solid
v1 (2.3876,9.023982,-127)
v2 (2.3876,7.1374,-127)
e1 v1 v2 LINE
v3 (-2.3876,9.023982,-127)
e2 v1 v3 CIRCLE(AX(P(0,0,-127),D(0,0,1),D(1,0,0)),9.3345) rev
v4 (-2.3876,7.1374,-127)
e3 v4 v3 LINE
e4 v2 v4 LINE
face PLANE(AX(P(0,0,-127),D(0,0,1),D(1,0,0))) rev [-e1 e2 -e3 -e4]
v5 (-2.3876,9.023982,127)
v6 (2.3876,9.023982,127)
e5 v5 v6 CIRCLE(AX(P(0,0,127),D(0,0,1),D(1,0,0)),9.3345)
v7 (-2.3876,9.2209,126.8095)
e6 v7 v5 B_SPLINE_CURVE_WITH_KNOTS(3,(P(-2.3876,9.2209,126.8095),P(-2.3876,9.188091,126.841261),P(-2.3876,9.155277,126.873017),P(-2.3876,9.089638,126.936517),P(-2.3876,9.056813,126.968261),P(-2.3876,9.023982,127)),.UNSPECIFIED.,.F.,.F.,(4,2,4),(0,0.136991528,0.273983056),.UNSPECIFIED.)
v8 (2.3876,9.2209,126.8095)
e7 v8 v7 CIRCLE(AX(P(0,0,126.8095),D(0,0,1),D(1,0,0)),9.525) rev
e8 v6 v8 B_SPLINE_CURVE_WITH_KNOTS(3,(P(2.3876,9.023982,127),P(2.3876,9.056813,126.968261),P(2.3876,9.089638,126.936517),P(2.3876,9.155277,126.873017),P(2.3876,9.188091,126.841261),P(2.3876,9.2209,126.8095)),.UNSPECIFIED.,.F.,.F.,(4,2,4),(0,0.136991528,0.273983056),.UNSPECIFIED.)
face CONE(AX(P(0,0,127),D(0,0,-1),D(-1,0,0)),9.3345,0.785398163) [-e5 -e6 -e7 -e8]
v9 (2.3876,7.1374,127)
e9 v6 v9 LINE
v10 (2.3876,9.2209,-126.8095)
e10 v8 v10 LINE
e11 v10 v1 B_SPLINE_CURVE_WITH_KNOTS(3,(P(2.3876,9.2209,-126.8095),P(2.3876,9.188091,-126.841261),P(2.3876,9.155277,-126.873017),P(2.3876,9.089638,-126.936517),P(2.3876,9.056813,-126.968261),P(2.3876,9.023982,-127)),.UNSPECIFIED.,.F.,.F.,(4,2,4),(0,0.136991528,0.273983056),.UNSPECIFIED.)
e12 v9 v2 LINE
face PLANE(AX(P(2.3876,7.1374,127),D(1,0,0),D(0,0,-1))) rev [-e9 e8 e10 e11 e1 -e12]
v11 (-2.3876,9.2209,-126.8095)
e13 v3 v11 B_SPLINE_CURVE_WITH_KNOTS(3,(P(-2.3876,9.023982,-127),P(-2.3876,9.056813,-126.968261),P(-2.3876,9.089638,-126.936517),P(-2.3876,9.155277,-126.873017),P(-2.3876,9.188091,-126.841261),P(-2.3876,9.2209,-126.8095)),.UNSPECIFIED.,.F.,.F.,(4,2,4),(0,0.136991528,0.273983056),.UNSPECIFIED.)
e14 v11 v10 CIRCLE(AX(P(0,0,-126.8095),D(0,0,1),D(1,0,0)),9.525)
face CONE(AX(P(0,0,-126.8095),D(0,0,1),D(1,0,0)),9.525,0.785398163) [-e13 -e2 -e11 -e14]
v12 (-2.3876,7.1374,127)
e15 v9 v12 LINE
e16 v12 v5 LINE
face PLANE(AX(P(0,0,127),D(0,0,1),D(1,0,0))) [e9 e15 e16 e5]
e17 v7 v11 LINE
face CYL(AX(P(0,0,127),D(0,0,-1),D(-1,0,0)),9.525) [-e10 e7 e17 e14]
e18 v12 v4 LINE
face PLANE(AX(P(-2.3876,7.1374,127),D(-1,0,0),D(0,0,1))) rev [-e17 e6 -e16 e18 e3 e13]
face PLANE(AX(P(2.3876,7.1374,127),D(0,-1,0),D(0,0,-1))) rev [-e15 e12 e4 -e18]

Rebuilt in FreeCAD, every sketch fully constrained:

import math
import FreeCAD as App
import Part
import Sketcher
from FreeCAD import Vector
Q = App.Units.Quantity


def edges_at(feature, points):
    """Names of the edges that pass closest to the given points."""
    edges = feature.Shape.Edges
    near = lambda p: min(range(len(edges)), key=lambda i: edges[i].distToShape(Part.Vertex(*p))[0])
    return sorted({f"Edge{near(p) + 1}" for p in points})

doc = App.newDocument("Part")
body = doc.addObject("PartDesign::Body", "Body")

# Sketch on XY plane
sketch1 = body.newObject("Sketcher::SketchObject", "Sketch")
sketch1.AttachmentSupport = (doc.getObject("XY_Plane"), [""])
sketch1.MapMode = "FlatFace"
sketch1.addGeometry(Part.LineSegment(Vector(-2.4, 7.1, 0), Vector(-2.4, 9.2, 0)), False)
sketch1.addGeometry(Part.ArcOfCircle(Part.Circle(Vector(0, 0, 0), Vector(0, 0, 1), 9.5), math.radians(105), math.radians(435)), False)
sketch1.addGeometry(Part.LineSegment(Vector(2.4, 9.2, 0), Vector(2.4, 7.1, 0)), False)
sketch1.addGeometry(Part.LineSegment(Vector(2.4, 7.1, 0), Vector(-2.4, 7.1, 0)), False)
sketch1.addConstraint(Sketcher.Constraint("Coincident", 0, 2, 1, 1))
sketch1.addConstraint(Sketcher.Constraint("Coincident", 1, 2, 2, 1))
sketch1.addConstraint(Sketcher.Constraint("Coincident", 2, 2, 3, 1))
sketch1.addConstraint(Sketcher.Constraint("Coincident", 3, 2, 0, 1))
sketch1.addConstraint(Sketcher.Constraint("Vertical", 0))
sketch1.addConstraint(Sketcher.Constraint("Vertical", 2))
sketch1.addConstraint(Sketcher.Constraint("Horizontal", 3))
sketch1.addConstraint(Sketcher.Constraint("Coincident", 1, 3, -1, 1))
sketch1.addConstraint(Sketcher.Constraint("Horizontal", 0, 2, 1, 2))
sketch1.addConstraint(Sketcher.Constraint("Radius", 1, Q("0.375 in")))
sketch1.addConstraint(Sketcher.Constraint("DistanceX", 3, 2, 3, 1, Q("0.188 in")))
sketch1.addConstraint(Sketcher.Constraint("DistanceY", -1, 1, 2, 2, Q("0.281 in")))
pad1 = body.newObject("PartDesign::Pad", "Pad")
pad1.Profile = sketch1
pad1.Type = "TwoLengths"
pad1.Length = Q("5 in")
pad1.Length2 = Q("5 in")
doc.recompute()

chamfer = body.newObject("PartDesign::Chamfer", "Chamfer")
chamfer.Base = (pad1, edges_at(pad1, [(0, -9.525, -127), (0, -9.525, 127)]))
chamfer.Size = Q("0.0075 in")

doc.recompute()
